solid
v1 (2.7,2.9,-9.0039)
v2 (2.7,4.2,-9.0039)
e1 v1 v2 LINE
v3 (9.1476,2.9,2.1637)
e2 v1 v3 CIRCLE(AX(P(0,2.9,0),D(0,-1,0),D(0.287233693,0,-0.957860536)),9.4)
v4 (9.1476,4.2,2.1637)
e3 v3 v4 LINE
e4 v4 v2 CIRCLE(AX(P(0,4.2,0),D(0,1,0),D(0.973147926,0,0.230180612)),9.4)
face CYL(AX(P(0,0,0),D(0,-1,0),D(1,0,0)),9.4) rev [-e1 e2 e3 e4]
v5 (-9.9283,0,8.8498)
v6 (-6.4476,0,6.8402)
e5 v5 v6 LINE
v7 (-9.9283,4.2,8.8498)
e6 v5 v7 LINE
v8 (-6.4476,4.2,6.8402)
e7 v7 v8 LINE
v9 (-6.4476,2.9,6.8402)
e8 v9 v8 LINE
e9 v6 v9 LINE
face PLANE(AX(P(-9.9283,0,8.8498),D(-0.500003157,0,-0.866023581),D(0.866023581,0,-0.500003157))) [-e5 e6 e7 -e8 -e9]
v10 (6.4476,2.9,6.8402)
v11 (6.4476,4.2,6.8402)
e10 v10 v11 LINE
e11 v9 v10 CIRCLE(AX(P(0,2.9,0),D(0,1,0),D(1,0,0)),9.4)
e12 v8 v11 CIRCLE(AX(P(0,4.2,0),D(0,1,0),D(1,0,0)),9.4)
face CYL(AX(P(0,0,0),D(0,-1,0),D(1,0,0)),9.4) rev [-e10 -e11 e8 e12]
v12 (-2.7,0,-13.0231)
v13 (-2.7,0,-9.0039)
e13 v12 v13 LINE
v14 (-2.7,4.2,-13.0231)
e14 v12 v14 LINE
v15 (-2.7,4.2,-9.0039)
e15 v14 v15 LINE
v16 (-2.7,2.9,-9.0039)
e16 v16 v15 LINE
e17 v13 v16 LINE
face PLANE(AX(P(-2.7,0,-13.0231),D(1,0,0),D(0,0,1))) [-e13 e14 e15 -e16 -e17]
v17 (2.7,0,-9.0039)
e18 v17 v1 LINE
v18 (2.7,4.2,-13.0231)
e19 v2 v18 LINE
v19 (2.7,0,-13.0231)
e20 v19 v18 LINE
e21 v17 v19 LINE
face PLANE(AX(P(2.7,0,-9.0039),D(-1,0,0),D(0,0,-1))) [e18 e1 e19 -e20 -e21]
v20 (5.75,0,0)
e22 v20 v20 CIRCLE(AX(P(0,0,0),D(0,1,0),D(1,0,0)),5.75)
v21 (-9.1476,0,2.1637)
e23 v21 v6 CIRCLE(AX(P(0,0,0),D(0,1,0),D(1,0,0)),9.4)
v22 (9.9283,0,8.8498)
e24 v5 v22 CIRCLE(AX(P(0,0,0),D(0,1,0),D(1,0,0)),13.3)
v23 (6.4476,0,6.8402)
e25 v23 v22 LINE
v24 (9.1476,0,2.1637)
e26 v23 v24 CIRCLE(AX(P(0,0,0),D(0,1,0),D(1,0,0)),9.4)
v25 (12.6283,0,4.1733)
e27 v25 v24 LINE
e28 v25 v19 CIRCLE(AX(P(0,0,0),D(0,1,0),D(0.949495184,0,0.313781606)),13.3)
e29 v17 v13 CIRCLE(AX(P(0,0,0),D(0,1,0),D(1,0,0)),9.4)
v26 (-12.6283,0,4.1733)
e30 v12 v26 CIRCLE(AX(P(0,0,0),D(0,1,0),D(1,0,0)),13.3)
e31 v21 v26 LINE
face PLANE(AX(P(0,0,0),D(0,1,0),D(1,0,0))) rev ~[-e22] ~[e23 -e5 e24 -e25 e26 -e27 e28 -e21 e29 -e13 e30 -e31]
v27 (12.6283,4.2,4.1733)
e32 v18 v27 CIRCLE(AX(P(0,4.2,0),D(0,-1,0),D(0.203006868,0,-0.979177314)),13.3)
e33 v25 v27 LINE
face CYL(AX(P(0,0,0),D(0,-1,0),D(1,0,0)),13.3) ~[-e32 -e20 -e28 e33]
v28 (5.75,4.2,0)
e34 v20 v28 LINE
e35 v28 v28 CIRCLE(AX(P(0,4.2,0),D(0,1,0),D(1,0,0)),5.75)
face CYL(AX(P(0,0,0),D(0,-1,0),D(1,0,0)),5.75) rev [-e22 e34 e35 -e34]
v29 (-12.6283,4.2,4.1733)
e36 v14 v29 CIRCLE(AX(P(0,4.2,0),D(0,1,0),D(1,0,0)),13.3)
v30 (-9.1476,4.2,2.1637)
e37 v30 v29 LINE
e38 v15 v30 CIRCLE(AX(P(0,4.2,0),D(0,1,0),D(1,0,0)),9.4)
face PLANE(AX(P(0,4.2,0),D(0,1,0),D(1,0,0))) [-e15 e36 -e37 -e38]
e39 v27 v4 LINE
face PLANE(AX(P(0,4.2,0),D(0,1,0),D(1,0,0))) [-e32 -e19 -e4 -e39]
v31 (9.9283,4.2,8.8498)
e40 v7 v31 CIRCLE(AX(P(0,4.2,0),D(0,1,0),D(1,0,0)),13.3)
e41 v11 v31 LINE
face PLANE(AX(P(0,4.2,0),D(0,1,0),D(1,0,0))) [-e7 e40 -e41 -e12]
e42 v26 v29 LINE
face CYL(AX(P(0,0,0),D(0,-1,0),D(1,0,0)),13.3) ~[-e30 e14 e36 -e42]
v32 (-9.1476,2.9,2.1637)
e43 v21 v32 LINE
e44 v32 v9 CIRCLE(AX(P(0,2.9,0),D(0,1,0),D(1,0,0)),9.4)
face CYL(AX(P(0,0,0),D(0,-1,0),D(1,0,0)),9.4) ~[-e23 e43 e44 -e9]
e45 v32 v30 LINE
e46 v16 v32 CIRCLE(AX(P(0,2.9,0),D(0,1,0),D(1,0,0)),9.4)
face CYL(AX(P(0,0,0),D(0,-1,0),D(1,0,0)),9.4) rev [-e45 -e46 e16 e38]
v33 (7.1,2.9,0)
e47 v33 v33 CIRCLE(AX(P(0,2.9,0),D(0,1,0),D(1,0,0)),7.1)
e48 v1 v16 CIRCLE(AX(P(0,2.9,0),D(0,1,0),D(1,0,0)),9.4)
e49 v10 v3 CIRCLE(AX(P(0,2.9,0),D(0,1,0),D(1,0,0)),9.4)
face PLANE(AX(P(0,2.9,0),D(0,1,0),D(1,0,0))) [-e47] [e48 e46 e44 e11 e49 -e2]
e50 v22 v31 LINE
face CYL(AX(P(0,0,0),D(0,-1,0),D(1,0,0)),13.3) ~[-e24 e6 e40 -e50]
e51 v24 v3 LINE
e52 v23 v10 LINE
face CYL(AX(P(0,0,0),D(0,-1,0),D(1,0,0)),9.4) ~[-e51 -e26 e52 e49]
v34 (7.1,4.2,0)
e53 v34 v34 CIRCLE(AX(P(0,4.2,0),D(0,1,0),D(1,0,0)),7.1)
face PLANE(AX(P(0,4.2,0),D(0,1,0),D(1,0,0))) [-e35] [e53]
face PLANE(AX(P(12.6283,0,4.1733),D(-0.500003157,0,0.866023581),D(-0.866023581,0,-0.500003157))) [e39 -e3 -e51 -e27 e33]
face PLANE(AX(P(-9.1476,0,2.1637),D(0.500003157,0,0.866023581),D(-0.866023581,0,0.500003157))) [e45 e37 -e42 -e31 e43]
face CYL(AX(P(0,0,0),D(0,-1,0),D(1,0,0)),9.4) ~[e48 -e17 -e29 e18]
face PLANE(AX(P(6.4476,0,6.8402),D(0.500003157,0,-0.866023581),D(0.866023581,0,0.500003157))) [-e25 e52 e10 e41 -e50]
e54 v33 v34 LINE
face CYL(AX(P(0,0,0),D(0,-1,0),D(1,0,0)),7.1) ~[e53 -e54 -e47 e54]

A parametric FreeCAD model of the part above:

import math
import FreeCAD as App
import Part
import Sketcher
Q = App.Units.Quantity

doc = App.newDocument("Part")
body = doc.addObject("PartDesign::Body", "Body")
body.AllowCompound = True

# Sketch on XZ plane
sketch1 = body.newObject("Sketcher::SketchObject", "Sketch")
sketch1.AttachmentSupport = (doc.getObject("XZ_Plane"), [""])
sketch1.MapMode = "FlatFace"
sketch1.addGeometry(Part.ArcOfCircle(Part.Circle(App.Vector(0, 0, 0), App.Vector(0, 0, 1), 13.3), math.radians(-78), math.radians(18)), False)
sketch1.addGeometry(Part.LineSegment(App.Vector(2.7, -13, 0), App.Vector(2.7, -9, 0)), False)
sketch1.addGeometry(Part.ArcOfCircle(Part.Circle(App.Vector(0, 0, 0), App.Vector(0, 0, 1), 9.4), math.radians(-73), math.radians(13)), False)
sketch1.addGeometry(Part.LineSegment(App.Vector(9.1, 2.2, 0), App.Vector(12.6, 4.2, 0)), False)
sketch1.addGeometry(Part.LineSegment(App.Vector(-2.7, -9, 0), App.Vector(-2.7, -13, 0)), False)
sketch1.addGeometry(Part.ArcOfCircle(Part.Circle(App.Vector(0, 0, 0), App.Vector(0, 0, 1), 13.3), math.radians(162), math.radians(258)), False)
sketch1.addGeometry(Part.LineSegment(App.Vector(-12.6, 4.2, 0), App.Vector(-9.1, 2.2, 0)), False)
sketch1.addGeometry(Part.ArcOfCircle(Part.Circle(App.Vector(0, 0, 0), App.Vector(0, 0, 1), 9.4), math.radians(167), math.radians(253)), False)
sketch1.addGeometry(Part.ArcOfCircle(Part.Circle(App.Vector(0, 0, 0), App.Vector(0, 0, 1), 13.3), math.radians(42), math.radians(138)), False)
sketch1.addGeometry(Part.LineSegment(App.Vector(9.9, 8.8, 0), App.Vector(6.4, 6.8, 0)), False)
sketch1.addGeometry(Part.ArcOfCircle(Part.Circle(App.Vector(0, 0, 0), App.Vector(0, 0, 1), 9.4), math.radians(47), math.radians(133)), False)
sketch1.addGeometry(Part.LineSegment(App.Vector(-6.4, 6.8, 0), App.Vector(-9.9, 8.8, 0)), False)
sketch1.addGeometry(Part.Circle(App.Vector(0, 0, 0), App.Vector(0, 0, 1), 7.1), False)
sketch1.addGeometry(Part.Circle(App.Vector(0, 0, 0), App.Vector(0, 0, 1), 5.8), False)
sketch1.addConstraint(Sketcher.Constraint("Coincident", 0, 1, 1, 1))
sketch1.addConstraint(Sketcher.Constraint("Coincident", 1, 2, 2, 1))
sketch1.addConstraint(Sketcher.Constraint("Coincident", 2, 2, 3, 1))
sketch1.addConstraint(Sketcher.Constraint("Coincident", 3, 2, 0, 2))
sketch1.addConstraint(Sketcher.Constraint("Coincident", 4, 2, 5, 2))
sketch1.addConstraint(Sketcher.Constraint("Coincident", 5, 1, 6, 1))
sketch1.addConstraint(Sketcher.Constraint("Coincident", 6, 2, 7, 1))
sketch1.addConstraint(Sketcher.Constraint("Coincident", 7, 2, 4, 1))
sketch1.addConstraint(Sketcher.Constraint("Coincident", 8, 1, 9, 1))
sketch1.addConstraint(Sketcher.Constraint("Coincident", 9, 2, 10, 1))
sketch1.addConstraint(Sketcher.Constraint("Coincident", 10, 2, 11, 1))
sketch1.addConstraint(Sketcher.Constraint("Coincident", 11, 2, 8, 2))
sketch1.addConstraint(Sketcher.Constraint("Vertical", 1))
sketch1.addConstraint(Sketcher.Constraint("Vertical", 4))
sketch1.addConstraint(Sketcher.Constraint("Coincident", 0, 3, -1, 1))
sketch1.addConstraint(Sketcher.Constraint("Coincident", 2, 3, -1, 1))
sketch1.addConstraint(Sketcher.Constraint("Coincident", 5, 3, -1, 1))
sketch1.addConstraint(Sketcher.Constraint("Coincident", 7, 3, -1, 1))
sketch1.addConstraint(Sketcher.Constraint("Coincident", 8, 3, -1, 1))
sketch1.addConstraint(Sketcher.Constraint("Coincident", 10, 3, -1, 1))
sketch1.addConstraint(Sketcher.Constraint("Coincident", 12, 3, -1, 1))
sketch1.addConstraint(Sketcher.Constraint("Coincident", 13, 3, -1, 1))
sketch1.addConstraint(Sketcher.Constraint("Equal", 0, 5))
sketch1.addConstraint(Sketcher.Constraint("Equal", 2, 7))
sketch1.addConstraint(Sketcher.Constraint("Equal", 5, 8))
sketch1.addConstraint(Sketcher.Constraint("Equal", 7, 10))
sketch1.addConstraint(Sketcher.Constraint("Parallel", 3, 9))
sketch1.addConstraint(Sketcher.Constraint("Parallel", 6, 11))
sketch1.addConstraint(Sketcher.Constraint("Horizontal", 0, 1, 4, 2))
sketch1.addConstraint(Sketcher.Constraint("Horizontal", 3, 2, 5, 1))
sketch1.addConstraint(Sketcher.Constraint("Horizontal", 2, 2, 6, 2))
sketch1.addConstraint(Sketcher.Constraint("Horizontal", 9, 2, 10, 2))
sketch1.addConstraint(Sketcher.Constraint("Equal", 6, 9))
sketch1.addConstraint(Sketcher.Constraint("Diameter", 12, 14.2))
sketch1.addConstraint(Sketcher.Constraint("Diameter", 13, 11.5))
sketch1.addConstraint(Sketcher.Constraint("Radius", 0, 13.3))
sketch1.addConstraint(Sketcher.Constraint("Radius", 2, 9.4))
sketch1.addConstraint(Sketcher.Constraint("DistanceX", -1, 1, 0, 1, 2.7))
sketch1.addConstraint(Sketcher.Constraint("DistanceX", 8, 1, 3, 2, 2.7))
sketch1.addConstraint(Sketcher.Constraint("Angle", 3, Q("30.0002 deg")))
pad1 = body.newObject("PartDesign::Pad", "Pad")
pad1.Profile = sketch1
pad1.Length = 4.2
pad1.Reversed = True

# Sketch on XZ plane
sketch2 = body.newObject("Sketcher::SketchObject", "Sketch001")
sketch2.AttachmentSupport = (doc.getObject("XZ_Plane"), [""])
sketch2.MapMode = "FlatFace"
sketch2.addGeometry(Part.Circle(App.Vector(0, 0, 0), App.Vector(0, 0, 1), 9), False)
sketch2.addGeometry(Part.Circle(App.Vector(0, 0, 0), App.Vector(0, 0, 1), 7), False)
sketch2.addConstraint(Sketcher.Constraint("Coincident", 0, 3, -1, 1))
sketch2.addConstraint(Sketcher.Constraint("Coincident", 1, 3, -1, 1))
sketch2.addConstraint(Sketcher.Constraint("Diameter", 0, 18.8))
sketch2.addConstraint(Sketcher.Constraint("Diameter", 1, 14.2))
pad2 = body.newObject("PartDesign::Pad", "Pad001")
pad2.Profile = sketch2
pad2.Length = 2.9
pad2.Reversed = True

doc.recompute()
